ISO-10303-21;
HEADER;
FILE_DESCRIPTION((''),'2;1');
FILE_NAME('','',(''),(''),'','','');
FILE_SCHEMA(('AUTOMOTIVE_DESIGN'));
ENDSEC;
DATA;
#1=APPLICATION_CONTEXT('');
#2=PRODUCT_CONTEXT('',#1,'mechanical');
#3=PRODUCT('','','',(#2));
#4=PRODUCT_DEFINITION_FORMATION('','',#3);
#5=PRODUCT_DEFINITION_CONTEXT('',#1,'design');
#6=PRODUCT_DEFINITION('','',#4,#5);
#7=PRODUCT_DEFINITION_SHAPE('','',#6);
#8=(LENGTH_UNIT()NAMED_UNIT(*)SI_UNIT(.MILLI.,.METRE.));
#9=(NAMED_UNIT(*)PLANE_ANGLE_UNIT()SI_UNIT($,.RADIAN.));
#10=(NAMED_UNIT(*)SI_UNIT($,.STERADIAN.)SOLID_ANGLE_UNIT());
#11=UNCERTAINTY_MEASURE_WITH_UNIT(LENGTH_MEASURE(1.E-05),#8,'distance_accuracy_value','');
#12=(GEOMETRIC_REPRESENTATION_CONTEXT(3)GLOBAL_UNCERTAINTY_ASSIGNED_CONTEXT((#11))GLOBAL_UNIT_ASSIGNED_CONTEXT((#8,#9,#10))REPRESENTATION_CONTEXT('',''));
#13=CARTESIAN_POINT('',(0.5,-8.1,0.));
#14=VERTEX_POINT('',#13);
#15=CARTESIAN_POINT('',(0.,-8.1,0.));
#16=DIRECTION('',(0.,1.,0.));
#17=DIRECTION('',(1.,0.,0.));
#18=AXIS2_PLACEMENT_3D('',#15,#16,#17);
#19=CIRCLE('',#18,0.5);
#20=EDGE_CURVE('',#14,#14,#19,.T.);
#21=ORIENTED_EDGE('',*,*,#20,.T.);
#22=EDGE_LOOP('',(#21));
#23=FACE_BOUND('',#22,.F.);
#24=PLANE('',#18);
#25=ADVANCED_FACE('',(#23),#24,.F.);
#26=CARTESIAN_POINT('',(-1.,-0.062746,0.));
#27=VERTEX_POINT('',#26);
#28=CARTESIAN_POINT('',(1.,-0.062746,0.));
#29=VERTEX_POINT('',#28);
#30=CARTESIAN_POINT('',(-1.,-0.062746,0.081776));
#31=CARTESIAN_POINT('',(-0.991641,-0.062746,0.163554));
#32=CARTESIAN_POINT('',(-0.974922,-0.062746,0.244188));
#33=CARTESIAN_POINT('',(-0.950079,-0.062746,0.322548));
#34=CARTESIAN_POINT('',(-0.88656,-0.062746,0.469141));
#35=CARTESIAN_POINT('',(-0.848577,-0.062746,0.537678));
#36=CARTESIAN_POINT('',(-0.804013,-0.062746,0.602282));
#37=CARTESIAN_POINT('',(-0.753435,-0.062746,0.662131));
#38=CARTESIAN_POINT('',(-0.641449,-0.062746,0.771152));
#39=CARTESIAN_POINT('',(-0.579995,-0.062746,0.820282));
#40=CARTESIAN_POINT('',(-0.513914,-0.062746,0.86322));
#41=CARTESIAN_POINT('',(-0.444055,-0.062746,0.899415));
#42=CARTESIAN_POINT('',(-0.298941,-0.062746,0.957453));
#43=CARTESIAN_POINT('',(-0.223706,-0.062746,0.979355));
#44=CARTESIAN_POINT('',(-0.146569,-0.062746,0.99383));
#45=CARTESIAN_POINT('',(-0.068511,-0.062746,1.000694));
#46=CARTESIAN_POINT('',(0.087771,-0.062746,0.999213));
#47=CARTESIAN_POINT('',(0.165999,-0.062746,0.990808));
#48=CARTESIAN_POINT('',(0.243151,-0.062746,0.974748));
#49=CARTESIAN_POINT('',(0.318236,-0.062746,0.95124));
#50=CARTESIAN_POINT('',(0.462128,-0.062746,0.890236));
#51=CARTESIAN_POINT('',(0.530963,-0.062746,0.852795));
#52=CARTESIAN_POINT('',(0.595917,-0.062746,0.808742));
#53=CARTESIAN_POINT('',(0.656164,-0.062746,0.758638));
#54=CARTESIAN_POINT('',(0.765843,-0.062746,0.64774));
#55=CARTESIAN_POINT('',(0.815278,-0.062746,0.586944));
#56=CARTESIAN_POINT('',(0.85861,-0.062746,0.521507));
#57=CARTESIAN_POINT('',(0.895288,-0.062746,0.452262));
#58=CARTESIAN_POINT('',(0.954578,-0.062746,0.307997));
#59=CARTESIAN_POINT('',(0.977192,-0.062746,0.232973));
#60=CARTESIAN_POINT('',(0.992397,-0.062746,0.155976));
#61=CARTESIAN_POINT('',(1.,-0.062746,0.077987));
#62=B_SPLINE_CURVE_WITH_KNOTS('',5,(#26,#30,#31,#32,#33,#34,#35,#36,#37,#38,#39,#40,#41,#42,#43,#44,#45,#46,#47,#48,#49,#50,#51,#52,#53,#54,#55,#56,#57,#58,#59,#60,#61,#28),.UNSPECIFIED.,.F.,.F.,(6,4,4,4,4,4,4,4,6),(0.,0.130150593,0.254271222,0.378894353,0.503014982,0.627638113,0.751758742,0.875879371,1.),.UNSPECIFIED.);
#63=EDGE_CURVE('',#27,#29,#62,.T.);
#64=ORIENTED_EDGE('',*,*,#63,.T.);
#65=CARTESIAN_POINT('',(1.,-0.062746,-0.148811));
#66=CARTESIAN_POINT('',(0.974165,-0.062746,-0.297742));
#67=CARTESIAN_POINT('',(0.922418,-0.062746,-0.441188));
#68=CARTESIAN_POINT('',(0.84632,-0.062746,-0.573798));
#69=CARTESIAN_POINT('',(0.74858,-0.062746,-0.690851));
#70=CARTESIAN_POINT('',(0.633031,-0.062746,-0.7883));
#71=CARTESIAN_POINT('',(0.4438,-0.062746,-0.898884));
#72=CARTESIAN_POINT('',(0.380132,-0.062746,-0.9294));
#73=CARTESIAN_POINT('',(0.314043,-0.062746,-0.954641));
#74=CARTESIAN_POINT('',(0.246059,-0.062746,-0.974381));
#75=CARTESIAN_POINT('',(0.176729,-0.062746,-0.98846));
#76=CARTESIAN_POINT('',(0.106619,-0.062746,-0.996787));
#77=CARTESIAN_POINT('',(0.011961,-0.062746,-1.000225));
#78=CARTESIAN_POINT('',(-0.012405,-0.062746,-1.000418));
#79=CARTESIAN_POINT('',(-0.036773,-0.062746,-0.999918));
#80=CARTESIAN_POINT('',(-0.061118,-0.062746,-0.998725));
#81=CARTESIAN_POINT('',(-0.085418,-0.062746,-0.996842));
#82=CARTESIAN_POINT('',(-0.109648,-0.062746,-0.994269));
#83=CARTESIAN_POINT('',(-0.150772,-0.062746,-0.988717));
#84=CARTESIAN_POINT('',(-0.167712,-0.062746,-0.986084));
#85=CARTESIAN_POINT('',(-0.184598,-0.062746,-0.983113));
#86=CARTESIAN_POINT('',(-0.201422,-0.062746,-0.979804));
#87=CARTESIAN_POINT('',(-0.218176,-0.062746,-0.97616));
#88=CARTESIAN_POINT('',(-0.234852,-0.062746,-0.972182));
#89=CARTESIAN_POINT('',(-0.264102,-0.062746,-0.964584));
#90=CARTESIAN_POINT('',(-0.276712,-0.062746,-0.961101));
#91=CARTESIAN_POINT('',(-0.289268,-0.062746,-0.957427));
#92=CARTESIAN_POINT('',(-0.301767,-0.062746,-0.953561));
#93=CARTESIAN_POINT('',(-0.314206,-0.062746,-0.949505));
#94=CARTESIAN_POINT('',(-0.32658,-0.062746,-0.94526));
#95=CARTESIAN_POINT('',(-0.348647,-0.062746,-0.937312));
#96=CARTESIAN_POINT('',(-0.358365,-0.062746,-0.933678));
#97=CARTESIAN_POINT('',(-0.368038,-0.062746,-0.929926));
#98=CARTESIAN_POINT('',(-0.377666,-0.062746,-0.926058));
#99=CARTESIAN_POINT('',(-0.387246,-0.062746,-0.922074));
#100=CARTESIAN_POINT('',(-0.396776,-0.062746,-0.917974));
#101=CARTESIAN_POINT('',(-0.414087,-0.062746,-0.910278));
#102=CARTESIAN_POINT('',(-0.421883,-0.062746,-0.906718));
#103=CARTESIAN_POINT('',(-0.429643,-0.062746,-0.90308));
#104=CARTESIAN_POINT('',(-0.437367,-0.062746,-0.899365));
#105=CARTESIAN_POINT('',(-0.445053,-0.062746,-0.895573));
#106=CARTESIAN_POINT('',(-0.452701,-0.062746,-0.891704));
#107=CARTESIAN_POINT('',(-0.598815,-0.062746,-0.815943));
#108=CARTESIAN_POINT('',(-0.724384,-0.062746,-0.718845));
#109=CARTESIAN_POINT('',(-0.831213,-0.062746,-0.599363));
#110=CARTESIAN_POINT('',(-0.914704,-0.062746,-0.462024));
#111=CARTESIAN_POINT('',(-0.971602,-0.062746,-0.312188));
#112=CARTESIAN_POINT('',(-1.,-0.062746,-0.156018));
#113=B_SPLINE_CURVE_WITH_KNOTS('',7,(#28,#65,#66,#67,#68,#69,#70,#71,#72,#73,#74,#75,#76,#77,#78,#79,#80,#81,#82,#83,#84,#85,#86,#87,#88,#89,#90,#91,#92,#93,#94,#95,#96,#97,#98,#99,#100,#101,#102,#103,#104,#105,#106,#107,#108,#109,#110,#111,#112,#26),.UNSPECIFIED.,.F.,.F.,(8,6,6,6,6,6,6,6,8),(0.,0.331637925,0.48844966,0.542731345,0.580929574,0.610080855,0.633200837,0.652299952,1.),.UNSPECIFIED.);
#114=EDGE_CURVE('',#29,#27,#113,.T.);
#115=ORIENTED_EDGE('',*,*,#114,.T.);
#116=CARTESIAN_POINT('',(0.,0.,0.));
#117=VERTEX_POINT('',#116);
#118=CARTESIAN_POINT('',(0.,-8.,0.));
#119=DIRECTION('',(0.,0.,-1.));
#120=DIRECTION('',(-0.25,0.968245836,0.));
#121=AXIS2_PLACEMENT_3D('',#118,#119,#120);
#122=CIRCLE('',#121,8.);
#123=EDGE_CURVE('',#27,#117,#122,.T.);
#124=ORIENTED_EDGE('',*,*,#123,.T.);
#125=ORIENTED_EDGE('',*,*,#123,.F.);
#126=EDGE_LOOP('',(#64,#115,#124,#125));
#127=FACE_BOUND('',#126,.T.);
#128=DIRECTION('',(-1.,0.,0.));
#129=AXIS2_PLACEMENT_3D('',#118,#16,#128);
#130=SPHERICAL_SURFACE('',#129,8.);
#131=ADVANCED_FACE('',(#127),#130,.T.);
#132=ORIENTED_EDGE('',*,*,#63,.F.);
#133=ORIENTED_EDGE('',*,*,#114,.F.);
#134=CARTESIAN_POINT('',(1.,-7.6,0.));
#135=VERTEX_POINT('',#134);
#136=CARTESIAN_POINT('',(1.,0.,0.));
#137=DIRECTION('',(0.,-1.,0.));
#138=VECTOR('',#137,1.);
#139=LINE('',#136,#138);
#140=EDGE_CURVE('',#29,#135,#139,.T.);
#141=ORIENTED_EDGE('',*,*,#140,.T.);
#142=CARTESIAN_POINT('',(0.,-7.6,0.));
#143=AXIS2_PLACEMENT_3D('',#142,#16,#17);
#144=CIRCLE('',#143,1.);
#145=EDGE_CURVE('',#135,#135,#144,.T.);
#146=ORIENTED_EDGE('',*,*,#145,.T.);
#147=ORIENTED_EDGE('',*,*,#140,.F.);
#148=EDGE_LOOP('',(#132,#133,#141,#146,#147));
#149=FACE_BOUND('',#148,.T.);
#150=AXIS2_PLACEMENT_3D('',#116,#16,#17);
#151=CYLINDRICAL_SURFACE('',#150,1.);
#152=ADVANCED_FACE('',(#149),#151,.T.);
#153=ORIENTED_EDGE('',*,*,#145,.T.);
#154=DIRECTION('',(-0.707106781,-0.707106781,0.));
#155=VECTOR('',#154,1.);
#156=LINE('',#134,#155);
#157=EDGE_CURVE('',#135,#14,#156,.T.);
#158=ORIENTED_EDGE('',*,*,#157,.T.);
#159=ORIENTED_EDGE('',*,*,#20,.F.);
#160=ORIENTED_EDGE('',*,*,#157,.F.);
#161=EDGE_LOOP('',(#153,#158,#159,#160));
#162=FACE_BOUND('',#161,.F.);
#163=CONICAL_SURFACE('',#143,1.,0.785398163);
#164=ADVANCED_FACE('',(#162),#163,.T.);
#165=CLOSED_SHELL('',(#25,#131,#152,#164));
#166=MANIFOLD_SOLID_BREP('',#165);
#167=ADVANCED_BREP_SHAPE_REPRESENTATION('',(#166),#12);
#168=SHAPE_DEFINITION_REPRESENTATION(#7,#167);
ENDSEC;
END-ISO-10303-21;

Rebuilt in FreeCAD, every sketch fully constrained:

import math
import FreeCAD as App
import Part
import Sketcher
from FreeCAD import Vector


def edges_at(feature, points):
    """Names of the edges that pass closest to the given points."""
    edges = feature.Shape.Edges
    near = lambda p: min(range(len(edges)), key=lambda i: edges[i].distToShape(Part.Vertex(*p))[0])
    return sorted({f"Edge{near(p) + 1}" for p in points})

doc = App.newDocument("Part")
body = doc.addObject("PartDesign::Body", "Body")

sketch1 = doc.addObject("Sketcher::SketchObject", "Sketch")
body.addObject(sketch1)
sketch1.AttachmentSupport = (doc.XZ_Plane, [""])
sketch1.MapMode = "FlatFace"
sketch1.addGeometry(Part.Circle(Vector(0, 0, 0), Vector(0, 0, 1), 1), False)
sketch1.addConstraint(Sketcher.Constraint("Coincident", 0, 3, -1, 1))
sketch1.addConstraint(Sketcher.Constraint("Diameter", 0, 2.0))
pad1 = doc.addObject("PartDesign::Pad", "Pad")
body.addObject(pad1)
pad1.Profile = sketch1
pad1.Length = 8.1
doc.recompute()

chamfer = doc.addObject("PartDesign::Chamfer", "Chamfer")
body.addObject(chamfer)
chamfer.Base = (pad1, edges_at(pad1, [(-1, -8.1, 0)]))
chamfer.Size = 0.5

sketch2 = doc.addObject("Sketcher::SketchObject", "Sketch001")
body.addObject(sketch2)
sketch2.AttachmentSupport = (doc.XY_Plane, [""])
sketch2.MapMode = "FlatFace"
sketch2.addGeometry(Part.LineSegment(Vector(0, 2, 0), Vector(-2, 2, 0)), False)
sketch2.addGeometry(Part.LineSegment(Vector(-2, 2, 0), Vector(-2, -0.3, 0)), False)
sketch2.addGeometry(Part.ArcOfCircle(Part.Circle(Vector(0, -8, 0), Vector(0, 0, 1), 8), math.radians(90), math.radians(104.48)), False)
sketch2.addGeometry(Part.LineSegment(Vector(0, 0, 0), Vector(0, 2, 0)), False)
sketch2.addConstraint(Sketcher.Constraint("Coincident", 0, 2, 1, 1))
sketch2.addConstraint(Sketcher.Constraint("Coincident", 1, 2, 2, 2))
sketch2.addConstraint(Sketcher.Constraint("Coincident", 2, 1, 3, 1))
sketch2.addConstraint(Sketcher.Constraint("Coincident", 3, 2, 0, 1))
sketch2.addConstraint(Sketcher.Constraint("Horizontal", 0))
sketch2.addConstraint(Sketcher.Constraint("Vertical", 1))
sketch2.addConstraint(Sketcher.Constraint("Vertical", 3))
sketch2.addConstraint(Sketcher.Constraint("Coincident", 2, 1, -1, 1))
sketch2.addConstraint(Sketcher.Constraint("PointOnObject", 2, 3, -2))
sketch2.addConstraint(Sketcher.Constraint("Equal", 0, 3))
sketch2.addConstraint(Sketcher.Constraint("Radius", 2, 8.0))
sketch2.addConstraint(Sketcher.Constraint("DistanceX", 0, 2, 0, 1, 2.0))
groove = doc.addObject("PartDesign::Groove", "Groove")
body.addObject(groove)
groove.Profile = sketch2
groove.ReferenceAxis = (sketch2, ["V_Axis"])
groove.Angle = 360

doc.recompute()
